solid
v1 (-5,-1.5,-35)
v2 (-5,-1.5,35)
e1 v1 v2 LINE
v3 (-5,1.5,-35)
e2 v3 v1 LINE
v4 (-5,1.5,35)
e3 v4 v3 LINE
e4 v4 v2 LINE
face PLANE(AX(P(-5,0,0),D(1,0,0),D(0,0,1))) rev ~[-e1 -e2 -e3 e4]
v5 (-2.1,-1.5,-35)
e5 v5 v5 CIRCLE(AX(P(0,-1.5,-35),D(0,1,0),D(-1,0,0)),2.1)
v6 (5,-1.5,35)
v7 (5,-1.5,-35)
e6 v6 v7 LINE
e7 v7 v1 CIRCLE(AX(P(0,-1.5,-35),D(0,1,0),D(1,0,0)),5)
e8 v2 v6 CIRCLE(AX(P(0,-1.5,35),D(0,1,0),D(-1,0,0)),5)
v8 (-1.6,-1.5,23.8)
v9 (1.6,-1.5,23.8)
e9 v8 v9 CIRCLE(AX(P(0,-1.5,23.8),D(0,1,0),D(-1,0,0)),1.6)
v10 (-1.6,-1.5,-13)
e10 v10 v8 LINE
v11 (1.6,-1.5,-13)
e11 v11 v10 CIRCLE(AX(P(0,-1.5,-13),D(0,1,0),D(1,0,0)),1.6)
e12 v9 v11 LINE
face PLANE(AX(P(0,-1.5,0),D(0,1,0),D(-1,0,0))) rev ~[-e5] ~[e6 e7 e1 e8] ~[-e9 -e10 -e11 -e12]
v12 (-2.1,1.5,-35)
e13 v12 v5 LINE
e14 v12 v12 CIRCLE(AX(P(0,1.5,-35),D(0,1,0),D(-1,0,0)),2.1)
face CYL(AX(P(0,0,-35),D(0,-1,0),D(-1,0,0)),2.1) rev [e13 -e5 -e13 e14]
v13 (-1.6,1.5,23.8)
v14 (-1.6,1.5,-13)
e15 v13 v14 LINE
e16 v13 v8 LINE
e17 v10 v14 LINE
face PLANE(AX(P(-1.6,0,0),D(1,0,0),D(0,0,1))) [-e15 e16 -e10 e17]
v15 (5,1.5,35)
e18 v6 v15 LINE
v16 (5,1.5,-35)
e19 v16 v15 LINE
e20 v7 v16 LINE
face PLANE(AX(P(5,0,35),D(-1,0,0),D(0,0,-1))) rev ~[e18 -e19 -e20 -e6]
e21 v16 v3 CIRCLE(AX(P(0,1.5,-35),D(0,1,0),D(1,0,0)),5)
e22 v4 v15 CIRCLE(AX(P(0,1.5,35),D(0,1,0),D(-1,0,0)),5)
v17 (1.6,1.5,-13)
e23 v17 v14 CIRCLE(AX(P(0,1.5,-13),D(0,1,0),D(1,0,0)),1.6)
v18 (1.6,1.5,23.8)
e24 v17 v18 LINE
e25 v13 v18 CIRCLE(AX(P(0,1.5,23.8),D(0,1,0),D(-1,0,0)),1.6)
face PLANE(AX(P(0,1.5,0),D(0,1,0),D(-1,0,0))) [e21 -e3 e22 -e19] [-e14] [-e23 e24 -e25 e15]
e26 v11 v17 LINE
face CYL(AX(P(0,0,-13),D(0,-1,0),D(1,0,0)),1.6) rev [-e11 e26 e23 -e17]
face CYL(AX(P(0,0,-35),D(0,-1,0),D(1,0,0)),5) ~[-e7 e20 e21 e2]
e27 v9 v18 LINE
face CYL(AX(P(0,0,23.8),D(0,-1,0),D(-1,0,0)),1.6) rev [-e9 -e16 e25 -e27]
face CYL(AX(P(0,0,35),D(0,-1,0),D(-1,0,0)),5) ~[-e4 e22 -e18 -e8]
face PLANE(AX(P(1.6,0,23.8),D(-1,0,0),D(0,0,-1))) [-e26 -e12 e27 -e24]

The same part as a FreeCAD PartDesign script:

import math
import FreeCAD as App
import Part
import Sketcher

doc = App.newDocument("Part")
params = doc.addObject("Spreadsheet::Sheet", "Params")
for row, (alias, value) in enumerate([
    ("sketch1_radius", "5 mm"),
    ("sketch1_diameter", "4.2 mm"),
    ("sketch1_radius2", "1.6 mm"),
    ("sketch1_height", "70 mm"),
    ("sketch1_height2", "36.8 mm"),
    ("pad1_length", "3 mm"),
], start=1):
    params.set(f"A{row}", alias)
    params.set(f"B{row}", "=" + value)
    params.setAlias(f"B{row}", alias)

body = doc.addObject("PartDesign::Body", "Body")

# Sketch on XZ plane
sketch1 = body.newObject("Sketcher::SketchObject", "Sketch")
sketch1.AttachmentSupport = (doc.getObject("XZ_Plane"), [""])
sketch1.MapMode = "FlatFace"
sketch1.addGeometry(Part.ArcOfCircle(Part.Circle(App.Vector(0, 35, 0), App.Vector(0, 0, 1), 5), math.radians(0), math.radians(180)), False)
sketch1.addGeometry(Part.LineSegment(App.Vector(5, 35, 0), App.Vector(5, -35, 0)), False)
sketch1.addGeometry(Part.ArcOfCircle(Part.Circle(App.Vector(0, -35, 0), App.Vector(0, 0, 1), 5), math.radians(180), math.radians(360)), False)
sketch1.addGeometry(Part.LineSegment(App.Vector(-5, -35, 0), App.Vector(-5, 35, 0)), False)
sketch1.addGeometry(Part.LineSegment(App.Vector(-1.6, 23.8, 0), App.Vector(-1.6, -13, 0)), False)
sketch1.addGeometry(Part.ArcOfCircle(Part.Circle(App.Vector(0, -13, 0), App.Vector(0, 0, 1), 1.6), math.radians(180), math.radians(360)), False)
sketch1.addGeometry(Part.LineSegment(App.Vector(1.6, -13, 0), App.Vector(1.6, 23.8, 0)), False)
sketch1.addGeometry(Part.ArcOfCircle(Part.Circle(App.Vector(0, 23.8, 0), App.Vector(0, 0, 1), 1.6), math.radians(0), math.radians(180)), False)
sketch1.addGeometry(Part.Circle(App.Vector(0, -35, 0), App.Vector(0, 0, 1), 2.1), False)
sketch1.addConstraint(Sketcher.Constraint("Tangent", 0, 1, 1, 1))
sketch1.addConstraint(Sketcher.Constraint("Tangent", 1, 2, 2, 2))
sketch1.addConstraint(Sketcher.Constraint("Tangent", 2, 1, 3, 1))
sketch1.addConstraint(Sketcher.Constraint("Tangent", 3, 2, 0, 2))
sketch1.addConstraint(Sketcher.Constraint("Tangent", 4, 2, 5, 1))
sketch1.addConstraint(Sketcher.Constraint("Tangent", 5, 2, 6, 1))
sketch1.addConstraint(Sketcher.Constraint("Tangent", 6, 2, 7, 1))
sketch1.addConstraint(Sketcher.Constraint("Tangent", 7, 2, 4, 1))
sketch1.addConstraint(Sketcher.Constraint("Vertical", 1))
sketch1.addConstraint(Sketcher.Constraint("Vertical", 3))
sketch1.addConstraint(Sketcher.Constraint("Vertical", 4))
sketch1.addConstraint(Sketcher.Constraint("Vertical", 6))
sketch1.addConstraint(Sketcher.Constraint("Coincident", 8, 3, 2, 3))
sketch1.addConstraint(Sketcher.Constraint("Symmetric", 0, 3, 2, 3, -1, 1))
sketch1.addConstraint(Sketcher.Constraint("PointOnObject", 5, 3, -2))
sketch1.addConstraint(Sketcher.Constraint("Radius", 0, 5.0))
sketch1.addConstraint(Sketcher.Constraint("Diameter", 8, 4.2))
sketch1.addConstraint(Sketcher.Constraint("Radius", 5, 1.6))
sketch1.addConstraint(Sketcher.Constraint("DistanceY", 1, 2, 1, 1, 70.0))
sketch1.addConstraint(Sketcher.Constraint("DistanceY", 2, 3, 5, 3, 22.0))
sketch1.addConstraint(Sketcher.Constraint("DistanceY", 4, 2, 4, 1, 36.8))
sketch1.setExpression("Constraints[15]", "Params.sketch1_radius")
sketch1.setExpression("Constraints[16]", "Params.sketch1_diameter")
sketch1.setExpression("Constraints[17]", "Params.sketch1_radius2")
sketch1.setExpression("Constraints[18]", "Params.sketch1_height")
sketch1.setExpression("Constraints[20]", "Params.sketch1_height2")
pad1 = body.newObject("PartDesign::Pad", "Pad")
pad1.Profile = sketch1
pad1.setExpression("Length", "Params.pad1_length")
pad1.Midplane = True

doc.recompute()
